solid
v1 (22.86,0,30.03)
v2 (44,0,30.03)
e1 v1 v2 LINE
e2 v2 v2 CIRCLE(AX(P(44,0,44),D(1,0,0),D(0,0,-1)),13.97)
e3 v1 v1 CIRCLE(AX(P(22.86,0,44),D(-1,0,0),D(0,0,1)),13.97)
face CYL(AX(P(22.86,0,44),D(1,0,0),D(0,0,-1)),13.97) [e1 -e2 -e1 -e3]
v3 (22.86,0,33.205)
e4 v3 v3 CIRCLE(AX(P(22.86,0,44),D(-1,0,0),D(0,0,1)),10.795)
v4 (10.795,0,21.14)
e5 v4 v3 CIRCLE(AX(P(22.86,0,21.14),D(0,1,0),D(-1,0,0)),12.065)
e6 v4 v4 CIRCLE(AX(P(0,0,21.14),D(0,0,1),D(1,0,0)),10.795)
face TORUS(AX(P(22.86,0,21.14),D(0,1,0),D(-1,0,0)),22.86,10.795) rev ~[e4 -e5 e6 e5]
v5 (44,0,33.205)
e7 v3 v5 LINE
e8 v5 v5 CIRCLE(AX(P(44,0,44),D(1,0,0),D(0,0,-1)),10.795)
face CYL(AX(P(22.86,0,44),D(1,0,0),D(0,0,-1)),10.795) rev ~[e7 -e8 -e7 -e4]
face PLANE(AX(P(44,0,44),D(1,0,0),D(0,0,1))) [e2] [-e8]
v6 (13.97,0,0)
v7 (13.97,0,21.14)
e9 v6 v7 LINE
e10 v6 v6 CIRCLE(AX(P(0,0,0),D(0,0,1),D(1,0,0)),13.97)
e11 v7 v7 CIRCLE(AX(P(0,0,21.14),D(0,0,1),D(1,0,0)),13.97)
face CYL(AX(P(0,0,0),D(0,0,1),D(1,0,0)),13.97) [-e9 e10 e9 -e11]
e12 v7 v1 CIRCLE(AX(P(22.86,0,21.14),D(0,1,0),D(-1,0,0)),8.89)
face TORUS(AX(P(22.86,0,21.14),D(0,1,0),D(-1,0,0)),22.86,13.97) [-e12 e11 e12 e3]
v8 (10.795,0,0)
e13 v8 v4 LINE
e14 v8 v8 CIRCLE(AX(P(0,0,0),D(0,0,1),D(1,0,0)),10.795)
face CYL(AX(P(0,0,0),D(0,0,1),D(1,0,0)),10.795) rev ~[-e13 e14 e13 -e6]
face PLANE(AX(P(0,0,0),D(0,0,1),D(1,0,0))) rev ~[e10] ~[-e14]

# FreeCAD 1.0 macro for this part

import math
import FreeCAD as App
import Part
import Sketcher
Q = App.Units.Quantity

doc = App.newDocument("Part")
body = doc.addObject("PartDesign::Body", "Body")

# Sketch on XY plane
sketch1 = body.newObject("Sketcher::SketchObject", "Sketch")
sketch1.AttachmentSupport = (doc.getObject("XY_Plane"), [""])
sketch1.MapMode = "FlatFace"
sketch1.addGeometry(Part.Circle(App.Vector(0, 0, 0), App.Vector(0, 0, 1), 13.97), False)
sketch1.addConstraint(Sketcher.Constraint("Coincident", 0, 3, -1, 1))
sketch1.addConstraint(Sketcher.Constraint("Diameter", 0, Q("1.1 in")))

# Sketch on XZ plane
sketch2 = body.newObject("Sketcher::SketchObject", "Sketch001")
sketch2.AttachmentSupport = (doc.getObject("XZ_Plane"), [""])
sketch2.MapMode = "FlatFace"
sketch2.addGeometry(Part.LineSegment(App.Vector(0, 0, 0), App.Vector(0, 21.14, 0)), False)
sketch2.addGeometry(Part.ArcOfCircle(Part.Circle(App.Vector(22.86, 21.14, 0), App.Vector(0, 0, 1), 22.86), math.radians(90), math.radians(180)), False)
sketch2.addGeometry(Part.LineSegment(App.Vector(22.86, 44, 0), App.Vector(44, 44, 0)), False)
sketch2.addConstraint(Sketcher.Constraint("Tangent", 0, 2, 1, 2))
sketch2.addConstraint(Sketcher.Constraint("Tangent", 1, 1, 2, 1))
sketch2.addConstraint(Sketcher.Constraint("Vertical", 0))
sketch2.addConstraint(Sketcher.Constraint("Horizontal", 2))
sketch2.addConstraint(Sketcher.Constraint("Coincident", 0, 1, -1, 1))
sketch2.addConstraint(Sketcher.Constraint("Equal", 2, 0))
sketch2.addConstraint(Sketcher.Constraint("Radius", 1, Q("0.9 in")))
sketch2.addConstraint(Sketcher.Constraint("DistanceX", 2, 1, 2, 2, 21.14))
doc.recompute()

additivepipe = body.newObject("PartDesign::AdditivePipe", "AdditivePipe")
additivepipe.Profile = sketch1
additivepipe.Spine = (sketch2, ["Edge1", "Edge2", "Edge3"])

# Sketch on XY plane
sketch3 = body.newObject("Sketcher::SketchObject", "Sketch002")
sketch3.AttachmentSupport = (doc.getObject("XY_Plane"), [""])
sketch3.MapMode = "FlatFace"
sketch3.addGeometry(Part.Circle(App.Vector(0, 0, 0), App.Vector(0, 0, 1), 10.795), False)
sketch3.addConstraint(Sketcher.Constraint("Coincident", 0, 3, -1, 1))
sketch3.addConstraint(Sketcher.Constraint("Diameter", 0, Q("0.85 in")))

# Sketch on XZ plane
sketch4 = body.newObject("Sketcher::SketchObject", "Sketch003")
sketch4.AttachmentSupport = (doc.getObject("XZ_Plane"), [""])
sketch4.MapMode = "FlatFace"
sketch4.addGeometry(Part.LineSegment(App.Vector(0, 0, 0), App.Vector(0, 21.14, 0)), False)
sketch4.addGeometry(Part.ArcOfCircle(Part.Circle(App.Vector(22.86, 21.14, 0), App.Vector(0, 0, 1), 22.86), math.radians(90), math.radians(180)), False)
sketch4.addGeometry(Part.LineSegment(App.Vector(22.86, 44, 0), App.Vector(44, 44, 0)), False)
sketch4.addConstraint(Sketcher.Constraint("Tangent", 0, 2, 1, 2))
sketch4.addConstraint(Sketcher.Constraint("Tangent", 1, 1, 2, 1))
sketch4.addConstraint(Sketcher.Constraint("Vertical", 0))
sketch4.addConstraint(Sketcher.Constraint("Horizontal", 2))
sketch4.addConstraint(Sketcher.Constraint("Coincident", 0, 1, -1, 1))
sketch4.addConstraint(Sketcher.Constraint("Equal", 2, 0))
sketch4.addConstraint(Sketcher.Constraint("Radius", 1, Q("0.9 in")))
sketch4.addConstraint(Sketcher.Constraint("DistanceX", 2, 1, 2, 2, 21.14))
doc.recompute()

subtractivepipe = body.newObject("PartDesign::SubtractivePipe", "SubtractivePipe")
subtractivepipe.Profile = sketch3
subtractivepipe.Spine = (sketch4, ["Edge1", "Edge2", "Edge3"])

doc.recompute()
